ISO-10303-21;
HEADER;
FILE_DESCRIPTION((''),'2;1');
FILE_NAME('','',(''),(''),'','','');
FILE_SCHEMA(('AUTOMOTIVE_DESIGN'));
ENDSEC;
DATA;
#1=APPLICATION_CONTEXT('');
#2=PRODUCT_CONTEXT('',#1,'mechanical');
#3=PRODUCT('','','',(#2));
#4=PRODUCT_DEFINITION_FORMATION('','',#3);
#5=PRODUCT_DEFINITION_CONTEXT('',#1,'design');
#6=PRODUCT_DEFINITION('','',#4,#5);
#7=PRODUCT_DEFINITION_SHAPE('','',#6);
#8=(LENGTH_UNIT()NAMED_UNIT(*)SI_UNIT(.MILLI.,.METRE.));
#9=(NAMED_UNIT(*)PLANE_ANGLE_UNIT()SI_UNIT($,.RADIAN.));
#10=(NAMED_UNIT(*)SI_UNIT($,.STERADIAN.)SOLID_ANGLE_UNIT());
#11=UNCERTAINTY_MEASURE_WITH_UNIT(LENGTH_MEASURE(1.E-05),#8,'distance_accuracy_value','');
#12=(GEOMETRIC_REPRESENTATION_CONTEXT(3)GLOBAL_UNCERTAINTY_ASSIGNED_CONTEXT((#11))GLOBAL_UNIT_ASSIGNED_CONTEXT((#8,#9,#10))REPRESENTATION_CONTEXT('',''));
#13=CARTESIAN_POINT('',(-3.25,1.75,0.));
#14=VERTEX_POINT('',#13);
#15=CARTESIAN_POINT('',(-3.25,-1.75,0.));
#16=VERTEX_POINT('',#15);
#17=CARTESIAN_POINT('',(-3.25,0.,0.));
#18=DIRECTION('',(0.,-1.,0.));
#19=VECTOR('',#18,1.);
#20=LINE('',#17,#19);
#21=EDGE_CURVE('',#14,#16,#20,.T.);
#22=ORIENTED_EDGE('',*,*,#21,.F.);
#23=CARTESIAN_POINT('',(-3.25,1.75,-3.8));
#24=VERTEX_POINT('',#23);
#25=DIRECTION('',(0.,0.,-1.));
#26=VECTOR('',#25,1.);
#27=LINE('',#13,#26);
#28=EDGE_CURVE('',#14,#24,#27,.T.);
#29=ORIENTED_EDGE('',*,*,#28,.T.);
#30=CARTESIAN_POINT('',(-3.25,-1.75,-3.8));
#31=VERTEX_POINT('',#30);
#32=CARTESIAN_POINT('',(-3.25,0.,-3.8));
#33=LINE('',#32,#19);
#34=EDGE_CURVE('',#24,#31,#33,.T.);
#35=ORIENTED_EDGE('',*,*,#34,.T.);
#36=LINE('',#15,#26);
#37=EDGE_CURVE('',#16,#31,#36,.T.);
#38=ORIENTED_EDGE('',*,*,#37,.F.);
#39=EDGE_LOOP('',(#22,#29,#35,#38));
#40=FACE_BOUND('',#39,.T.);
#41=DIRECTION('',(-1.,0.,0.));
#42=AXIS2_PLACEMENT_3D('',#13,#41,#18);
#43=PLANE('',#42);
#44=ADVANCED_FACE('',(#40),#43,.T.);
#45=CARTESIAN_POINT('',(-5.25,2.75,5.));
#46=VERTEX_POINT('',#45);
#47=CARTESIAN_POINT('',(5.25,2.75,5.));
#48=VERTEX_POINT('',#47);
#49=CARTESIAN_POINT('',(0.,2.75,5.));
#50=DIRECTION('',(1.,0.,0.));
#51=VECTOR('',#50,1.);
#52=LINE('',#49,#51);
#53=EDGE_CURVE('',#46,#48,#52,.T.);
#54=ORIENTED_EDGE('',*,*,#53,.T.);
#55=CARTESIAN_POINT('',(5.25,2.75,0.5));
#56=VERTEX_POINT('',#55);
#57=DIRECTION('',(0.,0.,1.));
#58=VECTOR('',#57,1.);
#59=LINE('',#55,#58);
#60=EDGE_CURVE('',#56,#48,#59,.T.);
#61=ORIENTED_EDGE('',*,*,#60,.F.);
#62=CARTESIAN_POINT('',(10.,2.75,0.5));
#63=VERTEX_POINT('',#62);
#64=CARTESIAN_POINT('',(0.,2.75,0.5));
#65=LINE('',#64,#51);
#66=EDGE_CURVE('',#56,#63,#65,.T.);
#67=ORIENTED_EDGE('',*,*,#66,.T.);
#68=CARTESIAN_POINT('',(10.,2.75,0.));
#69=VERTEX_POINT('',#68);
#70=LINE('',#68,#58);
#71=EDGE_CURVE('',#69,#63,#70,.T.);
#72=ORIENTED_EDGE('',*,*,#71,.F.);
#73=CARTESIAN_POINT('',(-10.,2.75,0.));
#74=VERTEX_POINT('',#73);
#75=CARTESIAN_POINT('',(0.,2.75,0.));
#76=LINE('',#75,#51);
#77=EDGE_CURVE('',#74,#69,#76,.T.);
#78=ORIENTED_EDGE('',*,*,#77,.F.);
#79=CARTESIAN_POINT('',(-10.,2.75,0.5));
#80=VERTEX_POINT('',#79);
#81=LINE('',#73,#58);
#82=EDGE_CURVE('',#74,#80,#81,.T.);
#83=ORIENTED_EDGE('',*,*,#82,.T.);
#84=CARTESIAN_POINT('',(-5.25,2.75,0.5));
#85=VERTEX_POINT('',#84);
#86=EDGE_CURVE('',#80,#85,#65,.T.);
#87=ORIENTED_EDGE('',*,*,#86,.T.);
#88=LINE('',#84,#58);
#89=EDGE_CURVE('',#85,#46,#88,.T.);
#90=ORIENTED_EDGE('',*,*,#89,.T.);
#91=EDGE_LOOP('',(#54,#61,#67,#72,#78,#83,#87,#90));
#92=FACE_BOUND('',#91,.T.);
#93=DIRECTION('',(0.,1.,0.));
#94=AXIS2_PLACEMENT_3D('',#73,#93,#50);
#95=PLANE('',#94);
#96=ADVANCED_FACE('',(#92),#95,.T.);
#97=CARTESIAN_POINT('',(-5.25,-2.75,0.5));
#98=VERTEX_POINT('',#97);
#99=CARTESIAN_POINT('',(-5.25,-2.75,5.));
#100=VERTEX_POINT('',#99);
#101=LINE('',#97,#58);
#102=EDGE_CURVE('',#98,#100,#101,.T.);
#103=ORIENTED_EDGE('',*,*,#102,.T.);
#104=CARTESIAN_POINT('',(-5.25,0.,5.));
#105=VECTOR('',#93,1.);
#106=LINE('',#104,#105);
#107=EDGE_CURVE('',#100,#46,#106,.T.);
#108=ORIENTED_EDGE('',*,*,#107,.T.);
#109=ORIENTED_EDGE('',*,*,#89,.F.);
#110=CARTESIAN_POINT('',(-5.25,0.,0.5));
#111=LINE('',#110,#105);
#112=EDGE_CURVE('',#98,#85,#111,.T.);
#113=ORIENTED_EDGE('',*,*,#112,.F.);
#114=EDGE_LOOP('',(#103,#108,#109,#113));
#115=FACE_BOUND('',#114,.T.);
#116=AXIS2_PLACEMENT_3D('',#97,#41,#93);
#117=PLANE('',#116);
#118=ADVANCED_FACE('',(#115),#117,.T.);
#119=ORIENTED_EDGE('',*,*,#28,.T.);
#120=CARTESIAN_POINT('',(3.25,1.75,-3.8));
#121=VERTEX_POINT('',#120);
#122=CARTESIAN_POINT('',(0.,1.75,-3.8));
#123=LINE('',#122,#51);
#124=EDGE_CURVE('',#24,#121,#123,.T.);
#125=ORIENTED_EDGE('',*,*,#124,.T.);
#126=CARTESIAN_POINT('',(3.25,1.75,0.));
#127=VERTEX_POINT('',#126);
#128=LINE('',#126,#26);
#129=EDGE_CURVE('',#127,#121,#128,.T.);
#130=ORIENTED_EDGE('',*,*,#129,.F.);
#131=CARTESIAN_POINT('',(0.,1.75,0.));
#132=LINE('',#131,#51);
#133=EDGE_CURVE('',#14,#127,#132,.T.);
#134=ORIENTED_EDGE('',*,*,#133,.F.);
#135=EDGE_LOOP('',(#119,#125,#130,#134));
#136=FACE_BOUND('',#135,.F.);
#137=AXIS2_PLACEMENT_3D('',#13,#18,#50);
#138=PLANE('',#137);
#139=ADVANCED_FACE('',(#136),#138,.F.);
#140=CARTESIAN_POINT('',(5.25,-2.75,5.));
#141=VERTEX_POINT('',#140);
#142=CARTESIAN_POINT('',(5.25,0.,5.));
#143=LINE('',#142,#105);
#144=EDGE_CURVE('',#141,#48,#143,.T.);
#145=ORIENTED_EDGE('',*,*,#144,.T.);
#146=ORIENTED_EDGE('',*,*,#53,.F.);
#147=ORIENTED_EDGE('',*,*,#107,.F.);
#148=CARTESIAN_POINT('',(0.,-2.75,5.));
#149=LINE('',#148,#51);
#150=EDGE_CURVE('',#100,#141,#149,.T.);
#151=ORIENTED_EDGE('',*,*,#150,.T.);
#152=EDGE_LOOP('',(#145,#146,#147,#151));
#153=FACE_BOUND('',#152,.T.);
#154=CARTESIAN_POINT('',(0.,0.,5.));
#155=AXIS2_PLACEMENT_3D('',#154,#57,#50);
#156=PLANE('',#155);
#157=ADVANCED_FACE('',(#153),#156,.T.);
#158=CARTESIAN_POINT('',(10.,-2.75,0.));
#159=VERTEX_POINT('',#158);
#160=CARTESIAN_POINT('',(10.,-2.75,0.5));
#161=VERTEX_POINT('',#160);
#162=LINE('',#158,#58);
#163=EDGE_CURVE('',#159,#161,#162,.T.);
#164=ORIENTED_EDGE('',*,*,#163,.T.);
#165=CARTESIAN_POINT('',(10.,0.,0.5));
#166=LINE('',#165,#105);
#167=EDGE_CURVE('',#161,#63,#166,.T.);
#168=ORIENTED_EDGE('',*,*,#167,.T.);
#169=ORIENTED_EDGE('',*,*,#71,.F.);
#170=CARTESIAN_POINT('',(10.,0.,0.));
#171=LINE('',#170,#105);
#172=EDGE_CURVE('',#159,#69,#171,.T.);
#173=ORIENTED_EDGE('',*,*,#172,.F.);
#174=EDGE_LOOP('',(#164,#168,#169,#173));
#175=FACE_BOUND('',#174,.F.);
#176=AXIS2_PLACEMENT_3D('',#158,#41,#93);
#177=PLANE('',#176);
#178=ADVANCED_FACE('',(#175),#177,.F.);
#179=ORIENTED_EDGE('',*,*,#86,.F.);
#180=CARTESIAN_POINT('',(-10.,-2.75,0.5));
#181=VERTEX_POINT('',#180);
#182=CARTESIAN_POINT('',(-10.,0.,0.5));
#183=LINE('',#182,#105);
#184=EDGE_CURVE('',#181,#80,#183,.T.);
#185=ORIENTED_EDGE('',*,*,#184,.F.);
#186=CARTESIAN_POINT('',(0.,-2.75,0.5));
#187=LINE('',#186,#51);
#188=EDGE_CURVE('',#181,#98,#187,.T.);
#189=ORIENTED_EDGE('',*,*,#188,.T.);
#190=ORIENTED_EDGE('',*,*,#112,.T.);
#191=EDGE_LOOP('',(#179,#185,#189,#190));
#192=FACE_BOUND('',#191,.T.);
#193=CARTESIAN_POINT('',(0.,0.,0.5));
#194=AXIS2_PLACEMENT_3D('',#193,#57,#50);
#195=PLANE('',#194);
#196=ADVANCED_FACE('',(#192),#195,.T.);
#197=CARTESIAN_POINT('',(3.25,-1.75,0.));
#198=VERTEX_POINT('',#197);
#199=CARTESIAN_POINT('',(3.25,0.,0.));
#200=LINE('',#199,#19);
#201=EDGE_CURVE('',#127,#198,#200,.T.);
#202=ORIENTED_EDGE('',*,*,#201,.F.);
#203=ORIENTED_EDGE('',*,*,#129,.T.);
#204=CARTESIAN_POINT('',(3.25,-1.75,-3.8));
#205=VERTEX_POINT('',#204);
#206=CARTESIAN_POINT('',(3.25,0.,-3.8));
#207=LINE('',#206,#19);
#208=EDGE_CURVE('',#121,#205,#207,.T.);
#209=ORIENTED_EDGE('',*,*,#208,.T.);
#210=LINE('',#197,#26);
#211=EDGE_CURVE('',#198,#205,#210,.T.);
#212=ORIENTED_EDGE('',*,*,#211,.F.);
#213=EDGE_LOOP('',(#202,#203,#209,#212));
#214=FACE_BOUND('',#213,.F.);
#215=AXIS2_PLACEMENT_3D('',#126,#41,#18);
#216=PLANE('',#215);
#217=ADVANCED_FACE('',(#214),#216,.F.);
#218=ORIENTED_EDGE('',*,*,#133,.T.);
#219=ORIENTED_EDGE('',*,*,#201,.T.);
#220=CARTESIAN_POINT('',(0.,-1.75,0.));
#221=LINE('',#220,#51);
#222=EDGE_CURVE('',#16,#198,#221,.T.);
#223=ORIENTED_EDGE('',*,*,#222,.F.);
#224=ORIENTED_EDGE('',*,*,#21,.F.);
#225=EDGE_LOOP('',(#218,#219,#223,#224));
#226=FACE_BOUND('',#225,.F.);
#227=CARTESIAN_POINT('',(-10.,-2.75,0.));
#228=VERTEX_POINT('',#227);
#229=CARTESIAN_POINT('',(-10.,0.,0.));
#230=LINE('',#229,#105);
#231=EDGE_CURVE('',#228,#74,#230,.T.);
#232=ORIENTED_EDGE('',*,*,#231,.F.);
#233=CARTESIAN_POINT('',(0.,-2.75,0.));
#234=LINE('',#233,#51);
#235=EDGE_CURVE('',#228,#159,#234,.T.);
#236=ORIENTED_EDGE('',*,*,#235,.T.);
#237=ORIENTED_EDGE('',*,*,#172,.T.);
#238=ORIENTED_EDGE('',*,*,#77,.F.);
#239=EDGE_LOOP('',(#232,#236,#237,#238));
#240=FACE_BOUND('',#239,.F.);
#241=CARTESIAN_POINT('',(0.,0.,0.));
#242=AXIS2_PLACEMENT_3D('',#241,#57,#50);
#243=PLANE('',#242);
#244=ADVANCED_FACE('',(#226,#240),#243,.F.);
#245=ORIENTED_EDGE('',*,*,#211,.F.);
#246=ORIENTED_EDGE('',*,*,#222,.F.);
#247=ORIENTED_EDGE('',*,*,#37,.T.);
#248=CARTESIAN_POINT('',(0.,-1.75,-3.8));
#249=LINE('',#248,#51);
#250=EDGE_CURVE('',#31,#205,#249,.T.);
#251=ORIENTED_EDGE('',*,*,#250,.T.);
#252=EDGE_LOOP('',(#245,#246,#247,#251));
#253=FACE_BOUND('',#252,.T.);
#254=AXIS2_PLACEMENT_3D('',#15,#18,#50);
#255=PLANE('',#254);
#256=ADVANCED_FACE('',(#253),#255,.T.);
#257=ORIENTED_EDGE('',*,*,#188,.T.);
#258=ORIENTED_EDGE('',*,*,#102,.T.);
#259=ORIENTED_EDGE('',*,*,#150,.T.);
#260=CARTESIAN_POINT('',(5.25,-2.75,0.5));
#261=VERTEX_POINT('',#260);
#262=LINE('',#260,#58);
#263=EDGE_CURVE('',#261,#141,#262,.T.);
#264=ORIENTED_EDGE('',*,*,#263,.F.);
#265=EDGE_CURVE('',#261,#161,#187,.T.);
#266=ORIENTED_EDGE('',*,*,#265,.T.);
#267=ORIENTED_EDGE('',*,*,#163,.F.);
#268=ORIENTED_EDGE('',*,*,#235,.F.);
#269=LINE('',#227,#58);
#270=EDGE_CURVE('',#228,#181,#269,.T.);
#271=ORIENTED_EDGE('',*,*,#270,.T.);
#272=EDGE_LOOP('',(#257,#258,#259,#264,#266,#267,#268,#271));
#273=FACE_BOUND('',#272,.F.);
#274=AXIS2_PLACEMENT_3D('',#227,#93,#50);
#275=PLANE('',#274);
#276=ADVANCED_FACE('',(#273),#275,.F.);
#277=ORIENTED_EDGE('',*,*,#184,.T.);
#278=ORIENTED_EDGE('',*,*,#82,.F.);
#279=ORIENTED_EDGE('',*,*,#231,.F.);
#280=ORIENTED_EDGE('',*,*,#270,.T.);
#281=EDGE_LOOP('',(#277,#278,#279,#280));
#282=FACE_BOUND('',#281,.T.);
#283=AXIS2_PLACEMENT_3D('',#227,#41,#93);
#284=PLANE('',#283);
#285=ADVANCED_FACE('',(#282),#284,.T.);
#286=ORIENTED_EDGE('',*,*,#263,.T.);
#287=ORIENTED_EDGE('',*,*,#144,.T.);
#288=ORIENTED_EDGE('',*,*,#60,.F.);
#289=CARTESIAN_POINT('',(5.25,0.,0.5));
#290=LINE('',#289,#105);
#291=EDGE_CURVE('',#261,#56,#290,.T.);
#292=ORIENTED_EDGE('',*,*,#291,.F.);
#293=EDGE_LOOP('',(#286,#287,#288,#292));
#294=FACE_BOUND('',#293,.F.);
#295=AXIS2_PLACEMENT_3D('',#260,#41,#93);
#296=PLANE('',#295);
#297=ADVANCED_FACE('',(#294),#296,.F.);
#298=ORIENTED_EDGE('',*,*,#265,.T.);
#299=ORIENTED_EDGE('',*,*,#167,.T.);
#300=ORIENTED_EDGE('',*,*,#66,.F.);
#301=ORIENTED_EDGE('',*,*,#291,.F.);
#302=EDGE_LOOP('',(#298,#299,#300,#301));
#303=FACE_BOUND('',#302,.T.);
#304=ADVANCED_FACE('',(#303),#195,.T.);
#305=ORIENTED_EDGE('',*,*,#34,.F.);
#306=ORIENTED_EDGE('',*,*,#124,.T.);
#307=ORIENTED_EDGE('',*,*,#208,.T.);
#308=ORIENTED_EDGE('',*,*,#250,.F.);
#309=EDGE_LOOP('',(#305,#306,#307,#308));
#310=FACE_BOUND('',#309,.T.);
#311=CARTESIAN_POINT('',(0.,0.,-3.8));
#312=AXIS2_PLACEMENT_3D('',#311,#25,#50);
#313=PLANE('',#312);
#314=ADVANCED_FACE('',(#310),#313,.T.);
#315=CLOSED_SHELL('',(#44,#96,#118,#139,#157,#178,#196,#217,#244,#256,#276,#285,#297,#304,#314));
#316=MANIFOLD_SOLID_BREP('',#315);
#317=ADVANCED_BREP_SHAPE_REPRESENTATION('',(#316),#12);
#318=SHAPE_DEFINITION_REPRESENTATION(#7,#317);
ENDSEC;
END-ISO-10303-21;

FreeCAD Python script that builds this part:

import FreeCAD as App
import Part
import Sketcher
from FreeCAD import Vector
Q = App.Units.Quantity


def add_polygon(sketch, points):
    """Adds a closed chain of lines whose ends are joined by coincident constraints."""
    first, n = sketch.GeometryCount, len(points)
    for a, b in zip(points, points[1:] + points[:1]):
        sketch.addGeometry(Part.LineSegment(App.Vector(*a, 0), App.Vector(*b, 0)), False)
    for i in range(n):
        sketch.addConstraint(Sketcher.Constraint("Coincident", first + i, 2, first + (i + 1) % n, 1))

doc = App.newDocument("Part")
body = doc.addObject("PartDesign::Body", "Body")

# Sketch on XY plane
sketch1 = body.newObject("Sketcher::SketchObject", "Sketch")
sketch1.AttachmentSupport = (doc.getObject("XY_Plane"), [""])
sketch1.MapMode = "FlatFace"
add_polygon(sketch1, [(-10, 3), (-10, -3), (10, -3), (10, 3)])  # lines 0-3
sketch1.addConstraint(Sketcher.Constraint("Vertical", 0))
sketch1.addConstraint(Sketcher.Constraint("Horizontal", 1))
sketch1.addConstraint(Sketcher.Constraint("Vertical", 2))
sketch1.addConstraint(Sketcher.Constraint("Horizontal", 3))
sketch1.addConstraint(Sketcher.Constraint("Symmetric", 0, 2, 2, 2, -1, 1))
sketch1.addConstraint(Sketcher.Constraint("DistanceX", 1, 1, 1, 2, Q("20 mm")))
sketch1.addConstraint(Sketcher.Constraint("DistanceY", 0, 2, 0, 1, Q("5.5 mm")))
pad1 = body.newObject("PartDesign::Pad", "Pad")
pad1.Profile = sketch1
pad1.Length = 0.5

# Sketch on XY plane
sketch2 = body.newObject("Sketcher::SketchObject", "Sketch001")
sketch2.AttachmentSupport = (doc.getObject("XY_Plane"), [""])
sketch2.MapMode = "FlatFace"
sketch2.AttachmentOffset = App.Placement(Vector(0, 0, 0.5), App.Rotation())
add_polygon(sketch2, [(-5, 3), (-5, -3), (5, -3), (5, 3)])  # lines 0-3
sketch2.addConstraint(Sketcher.Constraint("Vertical", 0))
sketch2.addConstraint(Sketcher.Constraint("Horizontal", 1))
sketch2.addConstraint(Sketcher.Constraint("Vertical", 2))
sketch2.addConstraint(Sketcher.Constraint("Horizontal", 3))
sketch2.addConstraint(Sketcher.Constraint("Symmetric", 0, 2, 2, 2, -1, 1))
sketch2.addConstraint(Sketcher.Constraint("DistanceX", 1, 1, 1, 2, Q("10.5 mm")))
sketch2.addConstraint(Sketcher.Constraint("DistanceY", 0, 2, 0, 1, Q("5.5 mm")))
pad2 = body.newObject("PartDesign::Pad", "Pad001")
pad2.Profile = sketch2
pad2.Length = 4.5

# Sketch on XY plane
sketch3 = body.newObject("Sketcher::SketchObject", "Sketch002")
sketch3.AttachmentSupport = (doc.getObject("XY_Plane"), [""])
sketch3.MapMode = "FlatFace"
add_polygon(sketch3, [(-3.2, -1.8), (-3.2, 1.8), (3.2, 1.8), (3.2, -1.8)])  # lines 0-3
sketch3.addConstraint(Sketcher.Constraint("Vertical", 0))
sketch3.addConstraint(Sketcher.Constraint("Horizontal", 1))
sketch3.addConstraint(Sketcher.Constraint("Vertical", 2))
sketch3.addConstraint(Sketcher.Constraint("Horizontal", 3))
sketch3.addConstraint(Sketcher.Constraint("Symmetric", 0, 2, 2, 2, -1, 1))
sketch3.addConstraint(Sketcher.Constraint("DistanceX", 1, 1, 1, 2, Q("6.5 mm")))
sketch3.addConstraint(Sketcher.Constraint("DistanceY", 0, 1, 0, 2, Q("3.5 mm")))
pad3 = body.newObject("PartDesign::Pad", "Pad002")
pad3.Profile = sketch3
pad3.Length = 3.8
pad3.Reversed = True

doc.recompute()
